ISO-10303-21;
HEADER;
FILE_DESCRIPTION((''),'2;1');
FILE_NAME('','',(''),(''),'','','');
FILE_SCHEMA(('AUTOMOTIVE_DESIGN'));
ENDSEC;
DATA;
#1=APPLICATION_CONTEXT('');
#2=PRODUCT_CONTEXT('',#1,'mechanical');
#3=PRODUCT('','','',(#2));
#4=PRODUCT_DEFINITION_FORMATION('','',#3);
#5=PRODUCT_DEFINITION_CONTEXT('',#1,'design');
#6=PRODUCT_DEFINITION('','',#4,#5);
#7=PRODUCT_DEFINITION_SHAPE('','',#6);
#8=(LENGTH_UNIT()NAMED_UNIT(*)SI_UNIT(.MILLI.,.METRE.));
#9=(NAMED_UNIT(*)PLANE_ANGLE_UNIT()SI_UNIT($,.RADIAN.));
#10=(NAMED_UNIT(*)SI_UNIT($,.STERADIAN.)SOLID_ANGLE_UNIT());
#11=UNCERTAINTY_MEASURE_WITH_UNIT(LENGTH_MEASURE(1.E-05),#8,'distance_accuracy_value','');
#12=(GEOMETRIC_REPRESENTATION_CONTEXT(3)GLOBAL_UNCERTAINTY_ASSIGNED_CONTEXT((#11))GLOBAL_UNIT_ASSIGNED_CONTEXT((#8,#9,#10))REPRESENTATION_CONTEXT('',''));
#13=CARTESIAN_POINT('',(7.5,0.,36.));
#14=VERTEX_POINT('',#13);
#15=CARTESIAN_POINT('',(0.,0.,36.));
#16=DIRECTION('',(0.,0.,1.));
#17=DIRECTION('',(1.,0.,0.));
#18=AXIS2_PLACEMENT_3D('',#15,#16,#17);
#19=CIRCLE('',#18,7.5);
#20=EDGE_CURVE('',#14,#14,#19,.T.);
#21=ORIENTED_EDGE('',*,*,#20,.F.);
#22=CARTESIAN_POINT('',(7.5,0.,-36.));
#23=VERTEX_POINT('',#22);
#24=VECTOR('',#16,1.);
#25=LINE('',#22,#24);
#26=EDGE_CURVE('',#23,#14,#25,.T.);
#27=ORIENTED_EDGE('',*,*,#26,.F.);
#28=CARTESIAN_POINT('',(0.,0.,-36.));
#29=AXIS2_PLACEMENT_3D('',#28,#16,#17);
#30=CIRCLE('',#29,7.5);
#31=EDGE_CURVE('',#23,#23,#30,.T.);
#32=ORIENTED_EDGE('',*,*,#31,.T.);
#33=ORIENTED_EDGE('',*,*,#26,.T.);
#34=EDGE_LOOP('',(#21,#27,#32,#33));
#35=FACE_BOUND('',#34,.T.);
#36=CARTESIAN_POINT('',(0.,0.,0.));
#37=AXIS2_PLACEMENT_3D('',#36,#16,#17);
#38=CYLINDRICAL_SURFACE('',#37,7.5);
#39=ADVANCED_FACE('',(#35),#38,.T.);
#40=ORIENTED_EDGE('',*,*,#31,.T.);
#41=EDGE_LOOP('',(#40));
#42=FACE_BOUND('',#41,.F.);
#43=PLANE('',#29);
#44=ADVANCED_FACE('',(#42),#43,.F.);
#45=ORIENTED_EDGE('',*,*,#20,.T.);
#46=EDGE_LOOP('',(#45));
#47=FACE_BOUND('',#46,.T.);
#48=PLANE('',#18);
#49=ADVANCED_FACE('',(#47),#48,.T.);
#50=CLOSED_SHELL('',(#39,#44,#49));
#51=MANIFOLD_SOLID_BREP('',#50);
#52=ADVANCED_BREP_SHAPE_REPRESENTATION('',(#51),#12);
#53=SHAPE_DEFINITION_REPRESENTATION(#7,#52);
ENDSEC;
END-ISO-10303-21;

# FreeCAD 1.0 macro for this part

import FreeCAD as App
import Part
import Sketcher

doc = App.newDocument("Part")
body = doc.addObject("PartDesign::Body", "Body")

# Sketch on XY plane
sketch1 = doc.addObject("Sketcher::SketchObject", "Sketch")
body.addObject(sketch1)
sketch1.AttachmentSupport = (doc.XY_Plane, [""])
sketch1.MapMode = "FlatFace"
sketch1.addGeometry(Part.Circle(App.Vector(0, 0, 0), App.Vector(0, 0, 1), 7.5), False)
sketch1.addConstraint([
    Sketcher.Constraint("Coincident", 0, 3, -1, 1),
    Sketcher.Constraint("Diameter", 0, 15.0),
])
pad1 = doc.addObject("PartDesign::Pad", "Pad")
body.addObject(pad1)
pad1.Profile = sketch1
pad1.Length = 72
pad1.Midplane = True

doc.recompute()
